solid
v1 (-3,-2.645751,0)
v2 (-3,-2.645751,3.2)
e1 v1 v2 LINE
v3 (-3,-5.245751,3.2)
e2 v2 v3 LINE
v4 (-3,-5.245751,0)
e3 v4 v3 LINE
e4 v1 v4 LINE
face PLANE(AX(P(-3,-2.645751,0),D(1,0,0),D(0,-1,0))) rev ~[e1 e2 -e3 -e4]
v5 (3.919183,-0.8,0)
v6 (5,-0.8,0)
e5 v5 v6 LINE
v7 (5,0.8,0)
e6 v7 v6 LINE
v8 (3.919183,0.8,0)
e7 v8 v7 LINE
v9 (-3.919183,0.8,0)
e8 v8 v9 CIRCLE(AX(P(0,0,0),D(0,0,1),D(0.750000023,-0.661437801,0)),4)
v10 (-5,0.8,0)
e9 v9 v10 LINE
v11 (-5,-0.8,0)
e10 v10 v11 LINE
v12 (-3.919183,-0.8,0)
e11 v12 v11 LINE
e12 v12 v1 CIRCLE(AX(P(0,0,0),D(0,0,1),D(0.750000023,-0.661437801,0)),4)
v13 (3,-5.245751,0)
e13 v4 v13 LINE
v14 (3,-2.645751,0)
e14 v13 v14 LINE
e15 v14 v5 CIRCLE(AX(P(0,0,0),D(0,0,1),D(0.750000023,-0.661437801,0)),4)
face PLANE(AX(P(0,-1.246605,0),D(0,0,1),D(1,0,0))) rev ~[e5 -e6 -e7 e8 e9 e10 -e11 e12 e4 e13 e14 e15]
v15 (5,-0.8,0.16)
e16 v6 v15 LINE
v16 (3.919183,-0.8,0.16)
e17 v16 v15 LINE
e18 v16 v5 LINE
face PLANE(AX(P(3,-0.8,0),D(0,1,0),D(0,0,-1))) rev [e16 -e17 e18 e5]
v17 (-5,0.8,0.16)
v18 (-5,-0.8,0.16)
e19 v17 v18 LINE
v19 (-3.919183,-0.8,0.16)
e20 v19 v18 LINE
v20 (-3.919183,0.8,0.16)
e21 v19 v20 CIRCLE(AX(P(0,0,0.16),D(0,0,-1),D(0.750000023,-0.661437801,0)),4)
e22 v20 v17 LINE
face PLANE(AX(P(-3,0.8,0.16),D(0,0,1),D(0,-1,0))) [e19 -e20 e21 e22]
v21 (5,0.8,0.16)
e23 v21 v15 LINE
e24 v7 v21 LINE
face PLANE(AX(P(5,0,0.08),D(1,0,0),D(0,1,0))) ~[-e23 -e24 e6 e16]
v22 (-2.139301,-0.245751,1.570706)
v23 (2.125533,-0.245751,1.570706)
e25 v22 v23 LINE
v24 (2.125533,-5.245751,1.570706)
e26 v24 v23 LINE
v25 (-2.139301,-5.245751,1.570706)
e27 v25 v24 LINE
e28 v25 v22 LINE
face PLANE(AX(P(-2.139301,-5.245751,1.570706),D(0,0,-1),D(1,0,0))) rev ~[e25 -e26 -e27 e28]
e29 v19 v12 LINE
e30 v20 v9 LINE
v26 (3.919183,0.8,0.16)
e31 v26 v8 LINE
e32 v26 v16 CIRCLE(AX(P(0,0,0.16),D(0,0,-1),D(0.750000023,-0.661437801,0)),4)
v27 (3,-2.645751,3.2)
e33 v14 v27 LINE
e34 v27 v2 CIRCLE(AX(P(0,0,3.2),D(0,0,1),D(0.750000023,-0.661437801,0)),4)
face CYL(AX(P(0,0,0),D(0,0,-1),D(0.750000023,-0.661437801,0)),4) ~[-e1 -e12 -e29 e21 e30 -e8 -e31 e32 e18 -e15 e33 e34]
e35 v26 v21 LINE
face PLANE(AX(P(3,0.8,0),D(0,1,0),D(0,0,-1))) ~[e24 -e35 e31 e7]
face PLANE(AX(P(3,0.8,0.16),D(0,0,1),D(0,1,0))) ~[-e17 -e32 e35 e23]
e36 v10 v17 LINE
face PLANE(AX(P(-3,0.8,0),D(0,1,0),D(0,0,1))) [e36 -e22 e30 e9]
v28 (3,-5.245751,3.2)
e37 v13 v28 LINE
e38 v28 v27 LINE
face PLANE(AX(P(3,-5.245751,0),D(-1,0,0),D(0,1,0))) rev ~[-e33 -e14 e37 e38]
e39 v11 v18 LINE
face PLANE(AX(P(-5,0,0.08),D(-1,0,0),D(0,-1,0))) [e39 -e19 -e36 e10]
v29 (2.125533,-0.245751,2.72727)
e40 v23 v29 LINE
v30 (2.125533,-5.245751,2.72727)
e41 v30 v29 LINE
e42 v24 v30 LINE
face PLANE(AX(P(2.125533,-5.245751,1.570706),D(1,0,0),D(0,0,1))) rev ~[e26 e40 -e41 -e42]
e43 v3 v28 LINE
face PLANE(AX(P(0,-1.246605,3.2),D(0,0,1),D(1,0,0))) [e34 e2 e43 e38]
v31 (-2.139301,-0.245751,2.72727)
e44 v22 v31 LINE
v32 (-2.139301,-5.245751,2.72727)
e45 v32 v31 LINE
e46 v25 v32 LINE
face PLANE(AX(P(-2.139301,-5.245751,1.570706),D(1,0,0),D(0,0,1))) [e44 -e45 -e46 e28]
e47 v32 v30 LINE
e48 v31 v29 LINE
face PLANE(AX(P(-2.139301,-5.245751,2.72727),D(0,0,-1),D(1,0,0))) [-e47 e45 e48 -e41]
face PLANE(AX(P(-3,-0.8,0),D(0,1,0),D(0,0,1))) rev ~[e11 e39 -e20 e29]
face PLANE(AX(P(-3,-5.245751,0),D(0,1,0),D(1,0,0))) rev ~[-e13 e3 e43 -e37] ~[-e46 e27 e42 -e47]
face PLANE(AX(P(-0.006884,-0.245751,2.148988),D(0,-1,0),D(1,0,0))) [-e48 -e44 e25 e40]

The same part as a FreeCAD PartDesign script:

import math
import FreeCAD as App
import Part
import Sketcher

V = App.Vector
Q = App.Units.Quantity

doc = App.newDocument("Part")
body = doc.addObject("PartDesign::Body", "Body")

sketch1 = body.newObject("Sketcher::SketchObject", "Sketch")
sketch1.AttachmentSupport = (doc.getObject("XY_Plane"), [""])
sketch1.MapMode = "FlatFace"
sketch1.addGeometry(Part.ArcOfCircle(Part.Circle(V(0, 0, 0), V(0, 0, 1), 4), math.radians(-41), math.radians(221)), False)
sketch1.addGeometry(Part.LineSegment(V(-3, -2.6, 0), V(-3, -5.2, 0)), False)
sketch1.addGeometry(Part.LineSegment(V(-3, -5.2, 0), V(3, -5.2, 0)), False)
sketch1.addGeometry(Part.LineSegment(V(3, -5.2, 0), V(3, -2.6, 0)), False)
sketch1.addConstraint(Sketcher.Constraint("Coincident", 0, 2, 1, 1))
sketch1.addConstraint(Sketcher.Constraint("Coincident", 1, 2, 2, 1))
sketch1.addConstraint(Sketcher.Constraint("Coincident", 2, 2, 3, 1))
sketch1.addConstraint(Sketcher.Constraint("Coincident", 3, 2, 0, 1))
sketch1.addConstraint(Sketcher.Constraint("Vertical", 1))
sketch1.addConstraint(Sketcher.Constraint("Horizontal", 2))
sketch1.addConstraint(Sketcher.Constraint("Vertical", 3))
sketch1.addConstraint(Sketcher.Constraint("Coincident", 0, 3, -1, 1))
sketch1.addConstraint(Sketcher.Constraint("Horizontal", 0, 2, 3, 2))
sketch1.addConstraint(Sketcher.Constraint("Radius", 0, Q("4 mm")))
sketch1.addConstraint(Sketcher.Constraint("DistanceX", 2, 1, 2, 2, Q("6 mm")))
sketch1.addConstraint(Sketcher.Constraint("DistanceY", 1, 2, 1, 1, Q("2.6 mm")))
pad1 = body.newObject("PartDesign::Pad", "Pad")
pad1.Profile = sketch1
pad1.Length = 3.2

sketch2 = body.newObject("Sketcher::SketchObject", "Sketch001")
sketch2.AttachmentSupport = (doc.getObject("YZ_Plane"), [""])
sketch2.MapMode = "FlatFace"
sketch2.AttachmentOffset = App.Placement(V(0, 0, -3), App.Rotation())
sketch2.addGeometry(Part.LineSegment(V(0.8, 0.16, 0), V(0.8, 0, 0)), False)
sketch2.addGeometry(Part.LineSegment(V(0.8, 0, 0), V(-0.8, 0, 0)), False)
sketch2.addGeometry(Part.LineSegment(V(-0.8, 0, 0), V(-0.8, 0.16, 0)), False)
sketch2.addGeometry(Part.LineSegment(V(-0.8, 0.16, 0), V(0.8, 0.16, 0)), False)
sketch2.addConstraint(Sketcher.Constraint("Coincident", 0, 2, 1, 1))
sketch2.addConstraint(Sketcher.Constraint("Coincident", 1, 2, 2, 1))
sketch2.addConstraint(Sketcher.Constraint("Coincident", 2, 2, 3, 1))
sketch2.addConstraint(Sketcher.Constraint("Coincident", 3, 2, 0, 1))
sketch2.addConstraint(Sketcher.Constraint("Vertical", 0))
sketch2.addConstraint(Sketcher.Constraint("Horizontal", 1))
sketch2.addConstraint(Sketcher.Constraint("Vertical", 2))
sketch2.addConstraint(Sketcher.Constraint("Horizontal", 3))
sketch2.addConstraint(Sketcher.Constraint("Symmetric", 0, 2, 1, 2, -1, 1))
sketch2.addConstraint(Sketcher.Constraint("DistanceX", 1, 2, 1, 1, Q("1.6 mm")))
sketch2.addConstraint(Sketcher.Constraint("DistanceY", 0, 2, 0, 1, Q("0.16 mm")))
pad2 = body.newObject("PartDesign::Pad", "Pad001")
pad2.Profile = sketch2
pad2.Length = 2
pad2.Reversed = True
doc.recompute()

mirrored = body.newObject("PartDesign::Mirrored", "Mirrored")
mirrored.Originals = [pad2]
mirrored.MirrorPlane = (doc.getObject("YZ_Plane"), [""])
body.Tip = mirrored

sketch3 = body.newObject("Sketcher::SketchObject", "Sketch002")
sketch3.AttachmentSupport = (doc.getObject("XZ_Plane"), [""])
sketch3.MapMode = "FlatFace"
sketch3.AttachmentOffset = App.Placement(V(0, 0, 5.245751), App.Rotation())
sketch3.addGeometry(Part.LineSegment(V(-2.1, 2.7, 0), V(-2.1, 1.6, 0)), False)
sketch3.addGeometry(Part.LineSegment(V(-2.1, 1.6, 0), V(2.1, 1.6, 0)), False)
sketch3.addGeometry(Part.LineSegment(V(2.1, 1.6, 0), V(2.1, 2.7, 0)), False)
sketch3.addGeometry(Part.LineSegment(V(2.1, 2.7, 0), V(-2.1, 2.7, 0)), False)
sketch3.addConstraint(Sketcher.Constraint("Coincident", 0, 2, 1, 1))
sketch3.addConstraint(Sketcher.Constraint("Coincident", 1, 2, 2, 1))
sketch3.addConstraint(Sketcher.Constraint("Coincident", 2, 2, 3, 1))
sketch3.addConstraint(Sketcher.Constraint("Coincident", 3, 2, 0, 1))
sketch3.addConstraint(Sketcher.Constraint("Vertical", 0))
sketch3.addConstraint(Sketcher.Constraint("Horizontal", 1))
sketch3.addConstraint(Sketcher.Constraint("Vertical", 2))
sketch3.addConstraint(Sketcher.Constraint("Horizontal", 3))
sketch3.addConstraint(Sketcher.Constraint("DistanceX", 0, 2, -1, 1, Q("2.139301 mm")))
sketch3.addConstraint(Sketcher.Constraint("DistanceX", 1, 1, 1, 2, Q("4.264834 mm")))
sketch3.addConstraint(Sketcher.Constraint("DistanceY", 0, 2, 0, 1, Q("1.156565 mm")))
sketch3.addConstraint(Sketcher.Constraint("DistanceY", -1, 1, 2, 2, Q("2.72727 mm")))
pocket1 = body.newObject("PartDesign::Pocket", "Pocket")
pocket1.Profile = sketch3
pocket1.Length = 5

doc.recompute()
